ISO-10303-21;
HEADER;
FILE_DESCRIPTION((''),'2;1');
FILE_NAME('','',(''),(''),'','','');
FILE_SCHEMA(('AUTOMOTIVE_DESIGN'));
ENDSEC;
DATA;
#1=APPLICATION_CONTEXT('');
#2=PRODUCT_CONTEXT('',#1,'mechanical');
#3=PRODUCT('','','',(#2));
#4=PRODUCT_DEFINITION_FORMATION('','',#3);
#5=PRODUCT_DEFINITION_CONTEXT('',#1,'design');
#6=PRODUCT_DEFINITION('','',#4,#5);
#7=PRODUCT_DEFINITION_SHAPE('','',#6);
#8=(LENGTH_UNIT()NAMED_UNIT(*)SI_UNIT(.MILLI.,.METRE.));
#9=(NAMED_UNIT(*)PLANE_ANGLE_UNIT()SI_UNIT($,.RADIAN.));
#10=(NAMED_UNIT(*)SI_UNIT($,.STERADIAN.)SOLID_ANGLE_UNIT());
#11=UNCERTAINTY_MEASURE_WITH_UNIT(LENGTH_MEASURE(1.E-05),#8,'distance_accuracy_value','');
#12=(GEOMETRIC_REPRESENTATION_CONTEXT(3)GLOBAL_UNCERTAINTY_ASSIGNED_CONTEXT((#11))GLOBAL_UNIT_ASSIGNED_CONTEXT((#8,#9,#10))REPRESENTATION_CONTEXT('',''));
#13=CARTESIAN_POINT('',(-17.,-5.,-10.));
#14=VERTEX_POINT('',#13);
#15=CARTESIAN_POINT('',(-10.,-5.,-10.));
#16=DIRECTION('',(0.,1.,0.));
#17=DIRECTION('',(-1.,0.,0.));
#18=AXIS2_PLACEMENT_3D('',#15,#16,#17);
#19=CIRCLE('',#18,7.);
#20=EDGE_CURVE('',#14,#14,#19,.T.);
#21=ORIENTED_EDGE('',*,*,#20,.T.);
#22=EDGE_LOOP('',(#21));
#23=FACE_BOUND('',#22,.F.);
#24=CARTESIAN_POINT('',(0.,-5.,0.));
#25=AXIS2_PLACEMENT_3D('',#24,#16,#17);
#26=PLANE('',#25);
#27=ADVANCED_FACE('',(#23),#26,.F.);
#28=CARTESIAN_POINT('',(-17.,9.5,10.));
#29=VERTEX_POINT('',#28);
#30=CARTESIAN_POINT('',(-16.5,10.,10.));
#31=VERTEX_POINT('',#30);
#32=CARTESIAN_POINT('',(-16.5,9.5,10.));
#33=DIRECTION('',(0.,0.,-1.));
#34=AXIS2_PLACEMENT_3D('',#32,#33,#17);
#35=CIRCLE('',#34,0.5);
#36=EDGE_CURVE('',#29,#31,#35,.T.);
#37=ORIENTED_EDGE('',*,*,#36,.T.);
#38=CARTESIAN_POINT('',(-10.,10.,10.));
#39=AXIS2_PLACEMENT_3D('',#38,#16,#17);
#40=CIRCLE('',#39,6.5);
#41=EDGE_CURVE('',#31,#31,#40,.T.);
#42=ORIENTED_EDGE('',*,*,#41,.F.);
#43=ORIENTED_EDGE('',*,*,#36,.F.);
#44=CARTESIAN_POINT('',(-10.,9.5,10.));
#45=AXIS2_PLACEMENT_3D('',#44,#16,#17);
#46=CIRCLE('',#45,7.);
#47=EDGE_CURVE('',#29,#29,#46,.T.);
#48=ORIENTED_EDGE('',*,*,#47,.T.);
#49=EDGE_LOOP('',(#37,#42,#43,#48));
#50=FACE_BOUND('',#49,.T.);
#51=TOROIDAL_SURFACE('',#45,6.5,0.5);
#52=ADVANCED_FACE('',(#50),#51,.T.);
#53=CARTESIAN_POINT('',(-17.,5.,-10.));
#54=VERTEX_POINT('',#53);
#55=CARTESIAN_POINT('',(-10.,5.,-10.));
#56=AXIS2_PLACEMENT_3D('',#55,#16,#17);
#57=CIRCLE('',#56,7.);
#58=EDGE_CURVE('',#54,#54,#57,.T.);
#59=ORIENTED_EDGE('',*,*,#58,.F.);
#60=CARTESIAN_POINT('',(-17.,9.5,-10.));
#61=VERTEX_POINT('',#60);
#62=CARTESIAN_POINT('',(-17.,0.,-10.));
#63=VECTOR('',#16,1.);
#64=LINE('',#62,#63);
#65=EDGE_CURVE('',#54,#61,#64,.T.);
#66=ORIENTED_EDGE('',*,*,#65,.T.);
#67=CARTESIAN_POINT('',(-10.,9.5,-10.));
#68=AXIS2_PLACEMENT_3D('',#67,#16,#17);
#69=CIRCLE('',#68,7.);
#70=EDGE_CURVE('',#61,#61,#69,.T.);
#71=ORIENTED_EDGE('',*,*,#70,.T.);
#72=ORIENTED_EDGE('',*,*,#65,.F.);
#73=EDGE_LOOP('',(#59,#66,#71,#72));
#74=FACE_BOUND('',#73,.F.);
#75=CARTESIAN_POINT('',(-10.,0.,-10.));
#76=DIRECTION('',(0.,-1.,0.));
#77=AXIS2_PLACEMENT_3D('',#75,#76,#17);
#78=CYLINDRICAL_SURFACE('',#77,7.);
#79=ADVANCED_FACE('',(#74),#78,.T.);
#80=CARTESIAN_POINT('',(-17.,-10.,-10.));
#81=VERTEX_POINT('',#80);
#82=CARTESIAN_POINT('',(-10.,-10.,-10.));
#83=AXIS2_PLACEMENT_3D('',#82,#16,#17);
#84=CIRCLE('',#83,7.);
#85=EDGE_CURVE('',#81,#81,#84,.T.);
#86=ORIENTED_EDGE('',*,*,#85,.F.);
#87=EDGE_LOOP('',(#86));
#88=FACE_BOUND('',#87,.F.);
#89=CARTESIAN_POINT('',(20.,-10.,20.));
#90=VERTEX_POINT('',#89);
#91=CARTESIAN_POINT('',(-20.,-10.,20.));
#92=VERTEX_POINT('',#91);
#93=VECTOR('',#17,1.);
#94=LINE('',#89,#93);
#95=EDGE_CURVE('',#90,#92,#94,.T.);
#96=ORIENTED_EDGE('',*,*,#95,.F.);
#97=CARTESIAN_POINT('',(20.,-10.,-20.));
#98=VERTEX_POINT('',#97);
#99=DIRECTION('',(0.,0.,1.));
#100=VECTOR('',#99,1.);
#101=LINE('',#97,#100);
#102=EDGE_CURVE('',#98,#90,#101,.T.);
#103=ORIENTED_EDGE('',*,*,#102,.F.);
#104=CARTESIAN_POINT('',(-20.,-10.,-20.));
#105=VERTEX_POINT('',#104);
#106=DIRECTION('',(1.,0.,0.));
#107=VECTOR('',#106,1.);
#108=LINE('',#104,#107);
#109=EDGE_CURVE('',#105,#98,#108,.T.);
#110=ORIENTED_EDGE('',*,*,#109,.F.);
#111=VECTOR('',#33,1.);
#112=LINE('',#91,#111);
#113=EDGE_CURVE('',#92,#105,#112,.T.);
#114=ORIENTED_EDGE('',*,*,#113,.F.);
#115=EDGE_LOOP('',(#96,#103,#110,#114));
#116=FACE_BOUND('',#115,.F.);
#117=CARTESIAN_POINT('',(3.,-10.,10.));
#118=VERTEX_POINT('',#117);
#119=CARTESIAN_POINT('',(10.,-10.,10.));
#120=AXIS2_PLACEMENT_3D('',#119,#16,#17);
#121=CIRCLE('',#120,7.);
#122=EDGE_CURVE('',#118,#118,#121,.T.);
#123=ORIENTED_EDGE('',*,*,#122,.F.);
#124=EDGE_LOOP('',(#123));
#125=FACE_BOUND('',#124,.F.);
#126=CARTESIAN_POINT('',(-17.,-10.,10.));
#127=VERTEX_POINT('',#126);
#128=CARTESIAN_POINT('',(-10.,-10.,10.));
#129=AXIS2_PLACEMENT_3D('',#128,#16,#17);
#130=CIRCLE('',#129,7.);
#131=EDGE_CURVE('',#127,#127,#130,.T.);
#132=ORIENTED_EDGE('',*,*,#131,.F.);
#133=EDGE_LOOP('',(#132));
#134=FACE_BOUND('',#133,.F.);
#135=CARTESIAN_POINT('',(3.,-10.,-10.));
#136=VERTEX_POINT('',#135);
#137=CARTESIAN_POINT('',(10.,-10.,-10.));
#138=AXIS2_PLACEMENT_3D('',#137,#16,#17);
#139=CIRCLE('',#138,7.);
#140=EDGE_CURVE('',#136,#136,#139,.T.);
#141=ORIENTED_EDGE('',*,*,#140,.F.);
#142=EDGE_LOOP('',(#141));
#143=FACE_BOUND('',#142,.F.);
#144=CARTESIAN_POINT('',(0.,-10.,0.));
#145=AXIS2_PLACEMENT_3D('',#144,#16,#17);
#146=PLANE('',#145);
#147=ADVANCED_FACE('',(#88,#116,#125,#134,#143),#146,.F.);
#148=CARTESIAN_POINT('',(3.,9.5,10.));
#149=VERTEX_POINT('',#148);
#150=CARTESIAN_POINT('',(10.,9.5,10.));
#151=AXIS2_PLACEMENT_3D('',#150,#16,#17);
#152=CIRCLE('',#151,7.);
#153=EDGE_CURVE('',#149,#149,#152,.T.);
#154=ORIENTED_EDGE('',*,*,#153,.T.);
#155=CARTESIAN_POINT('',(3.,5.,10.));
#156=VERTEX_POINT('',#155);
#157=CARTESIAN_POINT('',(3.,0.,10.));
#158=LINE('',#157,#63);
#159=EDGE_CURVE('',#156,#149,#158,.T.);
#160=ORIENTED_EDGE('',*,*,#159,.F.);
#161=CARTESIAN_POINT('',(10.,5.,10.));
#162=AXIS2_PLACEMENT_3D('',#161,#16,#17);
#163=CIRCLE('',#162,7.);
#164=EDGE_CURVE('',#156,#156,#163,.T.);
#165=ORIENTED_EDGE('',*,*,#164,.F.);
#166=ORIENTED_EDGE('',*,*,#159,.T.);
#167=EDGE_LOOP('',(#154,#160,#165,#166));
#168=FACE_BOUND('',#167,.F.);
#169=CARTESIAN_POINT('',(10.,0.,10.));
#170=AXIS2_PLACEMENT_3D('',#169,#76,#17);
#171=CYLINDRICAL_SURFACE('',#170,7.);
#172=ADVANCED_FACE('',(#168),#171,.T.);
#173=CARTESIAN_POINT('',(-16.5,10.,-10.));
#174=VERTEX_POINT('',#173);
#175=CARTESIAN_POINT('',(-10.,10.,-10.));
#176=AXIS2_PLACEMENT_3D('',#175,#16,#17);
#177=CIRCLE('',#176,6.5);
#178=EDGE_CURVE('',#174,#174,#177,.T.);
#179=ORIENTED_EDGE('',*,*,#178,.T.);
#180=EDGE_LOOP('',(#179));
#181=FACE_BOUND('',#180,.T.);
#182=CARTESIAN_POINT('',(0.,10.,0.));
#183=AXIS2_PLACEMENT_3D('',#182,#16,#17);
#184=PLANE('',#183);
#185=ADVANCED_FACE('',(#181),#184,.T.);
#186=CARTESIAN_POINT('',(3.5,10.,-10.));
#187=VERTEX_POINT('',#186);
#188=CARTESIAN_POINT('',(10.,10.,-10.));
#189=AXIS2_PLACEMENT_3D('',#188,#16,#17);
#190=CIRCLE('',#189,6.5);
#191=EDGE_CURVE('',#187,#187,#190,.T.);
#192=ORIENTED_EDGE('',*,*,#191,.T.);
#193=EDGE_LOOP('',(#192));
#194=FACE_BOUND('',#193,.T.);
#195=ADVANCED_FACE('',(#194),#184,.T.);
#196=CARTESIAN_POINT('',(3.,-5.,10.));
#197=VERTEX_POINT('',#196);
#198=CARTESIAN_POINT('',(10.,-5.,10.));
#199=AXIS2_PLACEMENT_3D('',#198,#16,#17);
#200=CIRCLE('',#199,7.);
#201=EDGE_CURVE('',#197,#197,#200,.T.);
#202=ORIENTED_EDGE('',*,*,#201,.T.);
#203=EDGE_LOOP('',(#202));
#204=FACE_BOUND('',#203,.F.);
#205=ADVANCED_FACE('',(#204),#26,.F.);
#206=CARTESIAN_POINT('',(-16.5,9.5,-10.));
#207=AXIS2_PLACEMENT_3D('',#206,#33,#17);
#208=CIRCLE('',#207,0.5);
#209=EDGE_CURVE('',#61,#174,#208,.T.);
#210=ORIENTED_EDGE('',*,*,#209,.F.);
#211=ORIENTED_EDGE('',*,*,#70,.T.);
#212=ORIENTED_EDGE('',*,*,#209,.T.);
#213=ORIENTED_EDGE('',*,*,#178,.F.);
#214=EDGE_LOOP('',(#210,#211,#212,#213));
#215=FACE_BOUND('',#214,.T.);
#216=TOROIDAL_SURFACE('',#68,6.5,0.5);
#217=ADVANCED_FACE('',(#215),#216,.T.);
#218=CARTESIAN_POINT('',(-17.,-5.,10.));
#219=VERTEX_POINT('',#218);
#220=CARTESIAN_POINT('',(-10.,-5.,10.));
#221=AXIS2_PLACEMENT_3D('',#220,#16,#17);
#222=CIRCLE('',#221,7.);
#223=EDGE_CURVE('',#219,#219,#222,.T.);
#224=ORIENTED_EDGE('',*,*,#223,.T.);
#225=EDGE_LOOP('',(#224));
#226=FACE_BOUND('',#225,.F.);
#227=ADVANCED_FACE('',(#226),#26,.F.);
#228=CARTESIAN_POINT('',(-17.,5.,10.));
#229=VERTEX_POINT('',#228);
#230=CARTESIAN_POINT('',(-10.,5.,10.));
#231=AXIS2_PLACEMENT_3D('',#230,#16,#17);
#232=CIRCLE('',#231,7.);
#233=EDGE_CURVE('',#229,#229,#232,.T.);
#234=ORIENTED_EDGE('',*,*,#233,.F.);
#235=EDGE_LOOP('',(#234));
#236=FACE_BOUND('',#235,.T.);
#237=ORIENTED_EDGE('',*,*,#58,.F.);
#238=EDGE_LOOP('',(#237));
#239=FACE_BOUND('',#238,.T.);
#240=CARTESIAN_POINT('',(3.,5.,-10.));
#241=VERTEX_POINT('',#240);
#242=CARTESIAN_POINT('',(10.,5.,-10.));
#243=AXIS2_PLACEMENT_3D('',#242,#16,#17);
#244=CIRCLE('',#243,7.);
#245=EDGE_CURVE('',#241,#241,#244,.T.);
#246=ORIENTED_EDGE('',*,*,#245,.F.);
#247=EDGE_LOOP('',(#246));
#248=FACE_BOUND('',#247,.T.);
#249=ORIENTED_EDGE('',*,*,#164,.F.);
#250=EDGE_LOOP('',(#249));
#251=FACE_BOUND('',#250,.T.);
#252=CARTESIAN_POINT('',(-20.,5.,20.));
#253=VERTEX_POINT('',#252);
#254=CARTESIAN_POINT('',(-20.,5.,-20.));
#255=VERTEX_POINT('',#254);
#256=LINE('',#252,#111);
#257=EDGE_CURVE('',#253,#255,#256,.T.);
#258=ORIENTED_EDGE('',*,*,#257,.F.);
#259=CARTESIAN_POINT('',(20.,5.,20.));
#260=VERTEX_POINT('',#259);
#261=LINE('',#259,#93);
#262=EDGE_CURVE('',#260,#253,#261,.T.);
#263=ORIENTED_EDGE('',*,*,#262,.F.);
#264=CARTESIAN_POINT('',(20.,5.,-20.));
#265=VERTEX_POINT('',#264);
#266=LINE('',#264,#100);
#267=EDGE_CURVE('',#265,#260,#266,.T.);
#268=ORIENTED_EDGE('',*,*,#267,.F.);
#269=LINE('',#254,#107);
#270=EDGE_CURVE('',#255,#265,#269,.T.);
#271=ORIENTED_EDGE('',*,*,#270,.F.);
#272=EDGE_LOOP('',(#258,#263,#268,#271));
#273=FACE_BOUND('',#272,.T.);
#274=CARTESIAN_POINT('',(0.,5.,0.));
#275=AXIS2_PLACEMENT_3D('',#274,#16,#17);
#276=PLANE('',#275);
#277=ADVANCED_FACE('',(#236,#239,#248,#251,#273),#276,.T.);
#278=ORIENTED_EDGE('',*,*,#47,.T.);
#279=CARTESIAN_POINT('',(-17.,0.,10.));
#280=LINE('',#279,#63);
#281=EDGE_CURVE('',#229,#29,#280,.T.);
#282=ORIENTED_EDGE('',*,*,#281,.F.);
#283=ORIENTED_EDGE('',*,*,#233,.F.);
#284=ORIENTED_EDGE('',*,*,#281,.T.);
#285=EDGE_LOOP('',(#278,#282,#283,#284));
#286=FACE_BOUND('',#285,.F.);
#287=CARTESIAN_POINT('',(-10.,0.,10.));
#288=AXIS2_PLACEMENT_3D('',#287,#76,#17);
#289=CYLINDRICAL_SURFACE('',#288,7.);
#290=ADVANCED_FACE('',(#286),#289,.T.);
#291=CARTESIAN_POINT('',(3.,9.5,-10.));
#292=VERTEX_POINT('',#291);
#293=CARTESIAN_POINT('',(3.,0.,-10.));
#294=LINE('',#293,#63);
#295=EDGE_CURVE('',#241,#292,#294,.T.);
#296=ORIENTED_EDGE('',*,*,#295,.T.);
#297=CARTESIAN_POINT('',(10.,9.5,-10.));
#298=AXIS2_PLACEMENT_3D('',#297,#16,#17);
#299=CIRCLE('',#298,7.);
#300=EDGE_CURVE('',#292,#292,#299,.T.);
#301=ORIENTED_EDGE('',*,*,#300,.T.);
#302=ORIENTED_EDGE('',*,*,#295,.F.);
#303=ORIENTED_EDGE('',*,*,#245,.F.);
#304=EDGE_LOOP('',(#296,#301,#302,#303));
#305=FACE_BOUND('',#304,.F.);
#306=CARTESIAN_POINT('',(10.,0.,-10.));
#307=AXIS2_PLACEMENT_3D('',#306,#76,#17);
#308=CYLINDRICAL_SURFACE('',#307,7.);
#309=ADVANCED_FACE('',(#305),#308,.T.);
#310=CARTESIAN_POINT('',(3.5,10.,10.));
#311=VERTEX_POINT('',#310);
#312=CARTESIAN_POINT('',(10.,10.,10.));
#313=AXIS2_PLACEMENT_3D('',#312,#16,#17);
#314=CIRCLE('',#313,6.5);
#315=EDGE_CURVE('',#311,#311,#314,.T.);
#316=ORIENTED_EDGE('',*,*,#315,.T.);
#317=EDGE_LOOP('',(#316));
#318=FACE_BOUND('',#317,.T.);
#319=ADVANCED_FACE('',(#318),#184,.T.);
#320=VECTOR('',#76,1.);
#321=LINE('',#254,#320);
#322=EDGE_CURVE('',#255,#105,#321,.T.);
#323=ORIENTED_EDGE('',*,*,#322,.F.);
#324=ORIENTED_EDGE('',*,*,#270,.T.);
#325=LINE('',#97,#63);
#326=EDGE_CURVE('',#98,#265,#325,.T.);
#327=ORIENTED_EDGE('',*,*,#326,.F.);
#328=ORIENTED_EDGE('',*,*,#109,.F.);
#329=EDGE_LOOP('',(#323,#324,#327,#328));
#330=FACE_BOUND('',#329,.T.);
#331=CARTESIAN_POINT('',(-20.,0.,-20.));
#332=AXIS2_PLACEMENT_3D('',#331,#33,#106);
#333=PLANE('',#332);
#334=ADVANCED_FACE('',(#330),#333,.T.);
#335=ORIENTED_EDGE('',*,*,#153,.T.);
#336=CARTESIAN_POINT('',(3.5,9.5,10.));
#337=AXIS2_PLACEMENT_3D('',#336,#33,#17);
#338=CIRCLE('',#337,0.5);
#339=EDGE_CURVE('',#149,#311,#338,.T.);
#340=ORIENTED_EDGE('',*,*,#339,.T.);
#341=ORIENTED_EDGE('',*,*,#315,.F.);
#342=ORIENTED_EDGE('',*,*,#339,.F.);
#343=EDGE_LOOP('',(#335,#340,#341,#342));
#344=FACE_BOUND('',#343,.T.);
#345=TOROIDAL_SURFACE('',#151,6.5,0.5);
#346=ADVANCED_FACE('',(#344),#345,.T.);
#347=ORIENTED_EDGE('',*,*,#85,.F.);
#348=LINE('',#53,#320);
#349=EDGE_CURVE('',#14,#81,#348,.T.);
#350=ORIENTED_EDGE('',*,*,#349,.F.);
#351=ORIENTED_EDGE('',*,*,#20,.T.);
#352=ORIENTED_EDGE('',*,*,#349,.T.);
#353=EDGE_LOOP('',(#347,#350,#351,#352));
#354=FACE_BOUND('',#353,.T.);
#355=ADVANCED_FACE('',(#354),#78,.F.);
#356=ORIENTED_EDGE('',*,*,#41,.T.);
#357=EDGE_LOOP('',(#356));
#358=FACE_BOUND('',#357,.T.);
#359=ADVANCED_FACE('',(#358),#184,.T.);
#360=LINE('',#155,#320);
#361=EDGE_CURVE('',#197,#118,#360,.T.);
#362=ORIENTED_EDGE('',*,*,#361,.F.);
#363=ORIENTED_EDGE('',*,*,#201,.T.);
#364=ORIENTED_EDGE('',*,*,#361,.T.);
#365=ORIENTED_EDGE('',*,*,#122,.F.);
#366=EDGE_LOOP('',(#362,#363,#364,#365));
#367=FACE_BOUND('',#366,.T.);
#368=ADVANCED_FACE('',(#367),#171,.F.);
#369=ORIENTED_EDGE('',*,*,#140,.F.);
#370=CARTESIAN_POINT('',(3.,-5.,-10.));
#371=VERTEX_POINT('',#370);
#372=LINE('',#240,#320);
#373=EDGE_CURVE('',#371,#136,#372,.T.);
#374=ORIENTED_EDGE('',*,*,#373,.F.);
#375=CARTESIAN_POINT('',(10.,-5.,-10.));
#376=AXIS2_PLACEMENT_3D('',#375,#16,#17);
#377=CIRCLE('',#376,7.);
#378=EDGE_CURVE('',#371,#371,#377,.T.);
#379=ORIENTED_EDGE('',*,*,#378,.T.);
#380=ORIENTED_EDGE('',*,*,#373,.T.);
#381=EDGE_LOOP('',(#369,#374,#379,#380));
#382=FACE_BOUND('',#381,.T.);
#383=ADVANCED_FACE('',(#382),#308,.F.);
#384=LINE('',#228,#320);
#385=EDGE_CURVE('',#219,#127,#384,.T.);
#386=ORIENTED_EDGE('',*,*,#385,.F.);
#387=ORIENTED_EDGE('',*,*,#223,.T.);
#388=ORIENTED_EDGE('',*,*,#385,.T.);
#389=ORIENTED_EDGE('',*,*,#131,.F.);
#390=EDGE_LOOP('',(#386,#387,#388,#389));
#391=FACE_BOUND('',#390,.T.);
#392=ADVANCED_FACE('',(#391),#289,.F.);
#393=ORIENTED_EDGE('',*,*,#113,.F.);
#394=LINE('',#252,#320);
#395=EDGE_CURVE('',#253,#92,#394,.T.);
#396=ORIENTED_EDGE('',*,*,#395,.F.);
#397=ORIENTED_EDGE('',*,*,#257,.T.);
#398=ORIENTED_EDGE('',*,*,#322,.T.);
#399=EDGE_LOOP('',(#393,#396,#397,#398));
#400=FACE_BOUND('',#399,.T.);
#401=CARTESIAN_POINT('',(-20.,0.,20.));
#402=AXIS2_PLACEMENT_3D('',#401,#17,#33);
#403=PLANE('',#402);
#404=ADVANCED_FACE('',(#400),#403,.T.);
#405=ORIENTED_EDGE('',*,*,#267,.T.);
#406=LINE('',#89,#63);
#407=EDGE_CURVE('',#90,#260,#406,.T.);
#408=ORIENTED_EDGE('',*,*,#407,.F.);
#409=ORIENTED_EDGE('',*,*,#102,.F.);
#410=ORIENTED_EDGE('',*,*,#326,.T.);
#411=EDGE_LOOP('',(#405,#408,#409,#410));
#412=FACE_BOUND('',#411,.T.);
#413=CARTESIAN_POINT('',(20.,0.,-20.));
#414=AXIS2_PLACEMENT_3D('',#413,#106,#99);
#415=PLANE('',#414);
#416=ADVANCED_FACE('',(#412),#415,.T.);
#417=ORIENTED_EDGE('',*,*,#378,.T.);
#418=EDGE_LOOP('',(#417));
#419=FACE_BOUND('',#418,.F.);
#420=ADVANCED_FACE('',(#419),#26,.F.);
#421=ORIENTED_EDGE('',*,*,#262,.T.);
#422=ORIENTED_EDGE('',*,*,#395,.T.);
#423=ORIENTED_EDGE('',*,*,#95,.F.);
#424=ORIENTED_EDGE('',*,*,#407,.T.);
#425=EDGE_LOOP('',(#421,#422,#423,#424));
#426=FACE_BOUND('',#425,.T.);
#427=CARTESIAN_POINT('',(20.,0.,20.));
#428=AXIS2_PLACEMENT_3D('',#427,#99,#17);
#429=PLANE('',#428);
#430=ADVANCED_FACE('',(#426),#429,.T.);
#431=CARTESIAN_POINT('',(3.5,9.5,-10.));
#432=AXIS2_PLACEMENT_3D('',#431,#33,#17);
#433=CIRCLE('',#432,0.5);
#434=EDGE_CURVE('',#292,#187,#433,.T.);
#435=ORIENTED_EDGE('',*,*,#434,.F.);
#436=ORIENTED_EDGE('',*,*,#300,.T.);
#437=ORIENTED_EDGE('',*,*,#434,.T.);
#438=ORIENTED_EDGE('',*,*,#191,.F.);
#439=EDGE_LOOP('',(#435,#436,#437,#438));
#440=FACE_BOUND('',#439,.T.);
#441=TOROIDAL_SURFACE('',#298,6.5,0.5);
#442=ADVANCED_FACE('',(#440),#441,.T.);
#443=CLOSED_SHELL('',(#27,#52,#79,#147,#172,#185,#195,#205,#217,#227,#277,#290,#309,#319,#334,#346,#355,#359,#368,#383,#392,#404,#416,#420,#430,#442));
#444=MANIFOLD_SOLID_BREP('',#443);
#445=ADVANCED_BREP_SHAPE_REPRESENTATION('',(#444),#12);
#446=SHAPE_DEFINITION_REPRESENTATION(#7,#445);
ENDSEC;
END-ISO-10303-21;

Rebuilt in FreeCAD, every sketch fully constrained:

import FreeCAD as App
import Part
import Sketcher
Q = App.Units.Quantity


def edges_at(feature, points):
    """Names of the edges that pass closest to the given points."""
    edges = feature.Shape.Edges
    near = lambda p: min(range(len(edges)), key=lambda i: edges[i].distToShape(Part.Vertex(*p))[0])
    return sorted({f"Edge{near(p) + 1}" for p in points})


def add_polygon(sketch, points):
    """Adds a closed chain of lines whose ends are joined by coincident constraints."""
    first, n = sketch.GeometryCount, len(points)
    for a, b in zip(points, points[1:] + points[:1]):
        sketch.addGeometry(Part.LineSegment(App.Vector(*a, 0), App.Vector(*b, 0)), False)
    for i in range(n):
        sketch.addConstraint(Sketcher.Constraint("Coincident", first + i, 2, first + (i + 1) % n, 1))

doc = App.newDocument("Part")
body = doc.addObject("PartDesign::Body", "Body")

# Sketch on XZ plane
sketch1 = body.newObject("Sketcher::SketchObject", "Sketch")
sketch1.AttachmentSupport = (doc.getObject("XZ_Plane"), [""])
sketch1.MapMode = "FlatFace"
add_polygon(sketch1, [(-20, 20), (20, 20), (20, -20), (-20, -20)])  # lines 0-3
sketch1.addGeometry(Part.Circle(App.Vector(10, -10, 0), App.Vector(0, 0, 1), 7), False)  # 4
sketch1.addGeometry(Part.Circle(App.Vector(-10, -10, 0), App.Vector(0, 0, 1), 7), False)  # 5
sketch1.addGeometry(Part.Circle(App.Vector(10, 10, 0), App.Vector(0, 0, 1), 7), False)  # 6
sketch1.addGeometry(Part.Circle(App.Vector(-10, 10, 0), App.Vector(0, 0, 1), 7), False)  # 7
sketch1.addConstraint([
    Sketcher.Constraint("Horizontal", 0),
    Sketcher.Constraint("Vertical", 1),
    Sketcher.Constraint("Horizontal", 2),
    Sketcher.Constraint("Vertical", 3),
    Sketcher.Constraint("Equal", 4, 5),
    Sketcher.Constraint("Equal", 5, 6),
    Sketcher.Constraint("Equal", 6, 7),
    Sketcher.Constraint("Symmetric", 5, 3, 6, 3, -1, 1),
    Sketcher.Constraint("Symmetric", 4, 3, 7, 3, -1, 1),
    Sketcher.Constraint("Symmetric", 0, 2, 2, 2, -1, 1),
    Sketcher.Constraint("Symmetric", 4, 3, 5, 3, -2),
    Sketcher.Constraint("Equal", 2, 1),
    Sketcher.Constraint("Diameter", 4, Q("14 mm")),
    Sketcher.Constraint("DistanceX", 0, 1, 0, 2, Q("40 mm")),
    Sketcher.Constraint("DistanceX", -1, 1, 4, 3, Q("10 mm")),
    Sketcher.Constraint("DistanceY", 4, 3, -1, 1, Q("10 mm")),
])
pad1 = body.newObject("PartDesign::Pad", "Pad")
pad1.Profile = sketch1
pad1.Type = "TwoLengths"
pad1.Length = 5
pad1.Length2 = 10
pad1.Reversed = True

# Sketch on XZ plane
sketch2 = body.newObject("Sketcher::SketchObject", "Sketch001")
sketch2.AttachmentSupport = (doc.getObject("XZ_Plane"), [""])
sketch2.MapMode = "FlatFace"
sketch2.addGeometry([
    Part.Circle(App.Vector(-10, 10, 0), App.Vector(0, 0, 1), 7),
    Part.Circle(App.Vector(-10, -10, 0), App.Vector(0, 0, 1), 7),
    Part.Circle(App.Vector(10, -10, 0), App.Vector(0, 0, 1), 7),
    Part.Circle(App.Vector(10, 10, 0), App.Vector(0, 0, 1), 7),
], False)
sketch2.addConstraint([
    Sketcher.Constraint("Equal", 0, 1),
    Sketcher.Constraint("Equal", 1, 2),
    Sketcher.Constraint("Equal", 2, 3),
    Sketcher.Constraint("Symmetric", 0, 3, 2, 3, -1, 1),
    Sketcher.Constraint("Symmetric", 1, 3, 3, 3, -1, 1),
    Sketcher.Constraint("Symmetric", 1, 3, 2, 3, -2),
    Sketcher.Constraint("Diameter", 0, Q("14 mm")),
    Sketcher.Constraint("DistanceX", 0, 3, -1, 1, Q("10 mm")),
    Sketcher.Constraint("DistanceY", -1, 1, 0, 3, Q("10 mm")),
])
pad2 = body.newObject("PartDesign::Pad", "Pad001")
pad2.Profile = sketch2
pad2.Type = "TwoLengths"
pad2.Length = 10
pad2.Length2 = 5
pad2.Reversed = True
doc.recompute()

fillet = body.newObject("PartDesign::Fillet", "Fillet")
fillet.Base = (pad2, edges_at(pad2, [
    (-3, 10, 10),
    (-3, 10, -10),
    (17, 10, -10),
    (17, 10, 10),
]))
fillet.Radius = 0.5

doc.recompute()
